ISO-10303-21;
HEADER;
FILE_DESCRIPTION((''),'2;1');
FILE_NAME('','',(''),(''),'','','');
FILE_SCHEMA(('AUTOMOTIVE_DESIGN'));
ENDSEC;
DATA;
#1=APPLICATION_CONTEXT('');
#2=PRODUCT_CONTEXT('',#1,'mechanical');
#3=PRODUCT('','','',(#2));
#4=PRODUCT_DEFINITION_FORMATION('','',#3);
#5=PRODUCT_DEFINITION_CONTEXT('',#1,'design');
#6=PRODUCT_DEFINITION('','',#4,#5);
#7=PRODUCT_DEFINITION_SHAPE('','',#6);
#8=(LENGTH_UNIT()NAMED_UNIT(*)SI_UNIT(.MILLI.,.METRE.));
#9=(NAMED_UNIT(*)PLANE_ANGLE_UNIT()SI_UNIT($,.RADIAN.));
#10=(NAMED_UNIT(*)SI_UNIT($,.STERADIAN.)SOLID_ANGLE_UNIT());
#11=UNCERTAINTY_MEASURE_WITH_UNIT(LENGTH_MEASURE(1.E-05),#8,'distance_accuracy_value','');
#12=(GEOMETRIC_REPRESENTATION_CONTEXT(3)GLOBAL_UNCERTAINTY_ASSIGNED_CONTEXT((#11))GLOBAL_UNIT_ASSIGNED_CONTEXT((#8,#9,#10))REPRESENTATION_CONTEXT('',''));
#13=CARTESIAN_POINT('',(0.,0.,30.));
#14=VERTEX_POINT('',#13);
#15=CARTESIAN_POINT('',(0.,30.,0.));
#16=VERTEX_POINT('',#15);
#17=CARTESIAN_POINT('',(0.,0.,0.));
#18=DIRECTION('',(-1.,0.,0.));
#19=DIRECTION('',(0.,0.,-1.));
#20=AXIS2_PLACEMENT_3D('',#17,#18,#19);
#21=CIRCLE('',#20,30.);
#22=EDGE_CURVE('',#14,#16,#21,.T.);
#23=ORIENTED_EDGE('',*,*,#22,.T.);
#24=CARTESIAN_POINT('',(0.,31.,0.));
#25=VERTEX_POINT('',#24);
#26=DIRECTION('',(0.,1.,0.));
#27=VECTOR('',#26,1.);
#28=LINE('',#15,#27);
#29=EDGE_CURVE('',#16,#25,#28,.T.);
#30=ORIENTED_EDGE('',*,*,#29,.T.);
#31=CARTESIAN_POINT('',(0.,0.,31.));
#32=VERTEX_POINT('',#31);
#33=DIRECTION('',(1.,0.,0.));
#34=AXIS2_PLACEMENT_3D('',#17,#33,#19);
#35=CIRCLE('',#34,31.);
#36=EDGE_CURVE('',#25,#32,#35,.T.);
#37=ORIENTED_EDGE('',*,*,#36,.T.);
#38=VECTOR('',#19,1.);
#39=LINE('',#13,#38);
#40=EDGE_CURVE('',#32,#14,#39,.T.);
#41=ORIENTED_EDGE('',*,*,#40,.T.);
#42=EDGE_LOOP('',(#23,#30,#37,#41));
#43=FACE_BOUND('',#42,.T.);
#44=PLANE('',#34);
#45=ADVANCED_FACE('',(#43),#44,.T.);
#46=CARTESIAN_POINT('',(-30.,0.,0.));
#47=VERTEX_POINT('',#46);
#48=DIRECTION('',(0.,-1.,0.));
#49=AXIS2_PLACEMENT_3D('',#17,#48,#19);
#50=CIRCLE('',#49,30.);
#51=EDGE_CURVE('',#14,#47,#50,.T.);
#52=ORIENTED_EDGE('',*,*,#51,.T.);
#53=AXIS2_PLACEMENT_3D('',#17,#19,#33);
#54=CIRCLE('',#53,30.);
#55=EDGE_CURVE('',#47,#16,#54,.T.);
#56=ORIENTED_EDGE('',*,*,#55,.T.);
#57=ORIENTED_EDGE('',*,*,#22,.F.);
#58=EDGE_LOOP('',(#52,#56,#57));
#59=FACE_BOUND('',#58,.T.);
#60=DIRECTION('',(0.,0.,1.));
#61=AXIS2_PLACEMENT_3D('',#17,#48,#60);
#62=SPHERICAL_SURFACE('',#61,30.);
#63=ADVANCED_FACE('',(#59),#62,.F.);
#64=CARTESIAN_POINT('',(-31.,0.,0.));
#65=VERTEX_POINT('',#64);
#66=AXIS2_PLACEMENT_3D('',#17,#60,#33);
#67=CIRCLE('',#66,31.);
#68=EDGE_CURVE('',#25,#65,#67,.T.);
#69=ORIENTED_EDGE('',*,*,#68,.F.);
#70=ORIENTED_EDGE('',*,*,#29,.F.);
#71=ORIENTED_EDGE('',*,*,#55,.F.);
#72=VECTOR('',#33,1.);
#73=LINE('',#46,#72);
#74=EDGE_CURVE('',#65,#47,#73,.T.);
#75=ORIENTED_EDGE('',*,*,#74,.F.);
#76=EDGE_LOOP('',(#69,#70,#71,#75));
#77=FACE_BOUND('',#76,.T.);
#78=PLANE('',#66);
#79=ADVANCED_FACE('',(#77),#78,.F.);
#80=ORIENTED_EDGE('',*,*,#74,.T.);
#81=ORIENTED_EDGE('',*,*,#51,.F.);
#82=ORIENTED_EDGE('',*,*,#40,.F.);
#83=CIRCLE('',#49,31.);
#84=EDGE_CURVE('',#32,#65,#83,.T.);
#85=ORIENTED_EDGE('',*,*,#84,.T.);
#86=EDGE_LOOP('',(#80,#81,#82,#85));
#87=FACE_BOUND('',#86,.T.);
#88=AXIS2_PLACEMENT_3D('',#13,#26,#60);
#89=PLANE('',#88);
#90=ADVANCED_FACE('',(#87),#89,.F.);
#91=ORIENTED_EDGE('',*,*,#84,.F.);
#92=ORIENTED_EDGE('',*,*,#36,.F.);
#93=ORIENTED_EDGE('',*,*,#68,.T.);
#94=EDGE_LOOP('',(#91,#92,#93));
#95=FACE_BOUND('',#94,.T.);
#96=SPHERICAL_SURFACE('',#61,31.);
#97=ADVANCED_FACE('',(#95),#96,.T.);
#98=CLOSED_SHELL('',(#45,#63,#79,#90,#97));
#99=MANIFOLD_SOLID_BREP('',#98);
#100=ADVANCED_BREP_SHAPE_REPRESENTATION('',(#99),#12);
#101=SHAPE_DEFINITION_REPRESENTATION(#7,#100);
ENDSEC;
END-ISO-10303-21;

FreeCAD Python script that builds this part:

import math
import FreeCAD as App
import Part
import Sketcher

doc = App.newDocument("Part")
body = doc.addObject("PartDesign::Body", "Body")

# Sketch on XY plane
sketch1 = body.newObject("Sketcher::SketchObject", "Sketch")
sketch1.AttachmentSupport = (doc.getObject("XY_Plane"), [""])
sketch1.MapMode = "FlatFace"
sketch1.addGeometry([
    Part.LineSegment(App.Vector(0, 30, 0), App.Vector(0, 31, 0)),
    Part.ArcOfCircle(Part.Circle(App.Vector(0, 0, 0), App.Vector(0, 0, 1), 31), math.radians(90), math.radians(180)),
    Part.LineSegment(App.Vector(-31, 0, 0), App.Vector(-30, 0, 0)),
    Part.ArcOfCircle(Part.Circle(App.Vector(0, 0, 0), App.Vector(0, 0, 1), 30), math.radians(90), math.radians(180)),
], False)
sketch1.addConstraint([
    Sketcher.Constraint("Coincident", 0, 2, 1, 1),
    Sketcher.Constraint("Coincident", 1, 2, 2, 1),
    Sketcher.Constraint("Coincident", 2, 2, 3, 2),
    Sketcher.Constraint("Coincident", 3, 1, 0, 1),
    Sketcher.Constraint("Vertical", 0),
    Sketcher.Constraint("Horizontal", 2),
    Sketcher.Constraint("Coincident", 1, 3, -1, 1),
    Sketcher.Constraint("Coincident", 3, 3, -1, 1),
    Sketcher.Constraint("PointOnObject", 0, 2, -2),
    Sketcher.Constraint("PointOnObject", 1, 2, -1),
    Sketcher.Constraint("Radius", 1, 31.0),
    Sketcher.Constraint("Radius", 3, 30.0),
])
revolution = body.newObject("PartDesign::Revolution", "Revolution")
revolution.Profile = sketch1
revolution.ReferenceAxis = (sketch1, ["V_Axis"])
revolution.Angle = 90

doc.recompute()
